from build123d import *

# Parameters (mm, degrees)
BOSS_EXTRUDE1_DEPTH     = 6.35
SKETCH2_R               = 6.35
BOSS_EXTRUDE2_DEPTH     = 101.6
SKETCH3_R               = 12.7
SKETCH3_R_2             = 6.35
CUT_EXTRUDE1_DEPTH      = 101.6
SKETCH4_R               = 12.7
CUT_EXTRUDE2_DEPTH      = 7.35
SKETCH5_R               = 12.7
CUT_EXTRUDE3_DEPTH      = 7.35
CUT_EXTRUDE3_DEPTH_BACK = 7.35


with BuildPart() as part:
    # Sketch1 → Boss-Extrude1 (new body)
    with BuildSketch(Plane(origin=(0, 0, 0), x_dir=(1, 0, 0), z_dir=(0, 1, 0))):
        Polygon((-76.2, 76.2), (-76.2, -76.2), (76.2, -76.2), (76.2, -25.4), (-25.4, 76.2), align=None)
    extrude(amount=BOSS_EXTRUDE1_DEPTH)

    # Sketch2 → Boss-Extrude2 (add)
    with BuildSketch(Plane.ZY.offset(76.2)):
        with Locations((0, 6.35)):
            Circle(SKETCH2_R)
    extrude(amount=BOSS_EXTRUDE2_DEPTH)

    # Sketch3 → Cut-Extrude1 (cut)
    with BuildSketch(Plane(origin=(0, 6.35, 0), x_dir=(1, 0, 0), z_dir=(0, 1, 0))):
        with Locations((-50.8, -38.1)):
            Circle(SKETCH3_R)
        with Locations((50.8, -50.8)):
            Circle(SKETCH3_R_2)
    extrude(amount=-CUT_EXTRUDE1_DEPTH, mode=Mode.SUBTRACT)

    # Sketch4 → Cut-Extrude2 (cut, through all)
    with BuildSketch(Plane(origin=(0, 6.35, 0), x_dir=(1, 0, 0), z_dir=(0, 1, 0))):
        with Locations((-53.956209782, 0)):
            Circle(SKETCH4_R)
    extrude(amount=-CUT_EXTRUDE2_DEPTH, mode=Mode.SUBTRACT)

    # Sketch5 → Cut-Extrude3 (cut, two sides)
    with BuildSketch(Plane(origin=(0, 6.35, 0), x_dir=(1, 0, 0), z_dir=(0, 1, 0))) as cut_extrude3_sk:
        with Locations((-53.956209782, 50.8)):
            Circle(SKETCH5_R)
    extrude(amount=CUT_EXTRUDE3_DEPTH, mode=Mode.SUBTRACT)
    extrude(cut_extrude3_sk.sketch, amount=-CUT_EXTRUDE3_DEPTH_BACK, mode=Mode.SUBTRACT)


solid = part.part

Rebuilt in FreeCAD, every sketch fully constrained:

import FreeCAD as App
import Part
import Sketcher

V = App.Vector
Q = App.Units.Quantity


def add_polygon(sketch, points):
    """Adds a closed chain of lines whose ends are joined by coincident constraints."""
    first, n = sketch.GeometryCount, len(points)
    for a, b in zip(points, points[1:] + points[:1]):
        sketch.addGeometry(Part.LineSegment(App.Vector(*a, 0), App.Vector(*b, 0)), False)
    for i in range(n):
        sketch.addConstraint(Sketcher.Constraint("Coincident", first + i, 2, first + (i + 1) % n, 1))

doc = App.newDocument("Part")
body = doc.addObject("PartDesign::Body", "Body")

sketch1 = body.newObject("Sketcher::SketchObject", "Sketch")
sketch1.AttachmentSupport = (doc.getObject("XZ_Plane"), [""])
sketch1.MapMode = "FlatFace"
add_polygon(sketch1, [(-76.2, -76.2), (-76.2, 76.2), (76.2, 76.2), (76.2, 25.4), (-25.4, -76.2)])
sketch1.addConstraint(Sketcher.Constraint("Vertical", 0))
sketch1.addConstraint(Sketcher.Constraint("Horizontal", 1))
sketch1.addConstraint(Sketcher.Constraint("Vertical", 2))
sketch1.addConstraint(Sketcher.Constraint("Horizontal", 4))
sketch1.addConstraint(Sketcher.Constraint("Symmetric", 1, 2, 4, 2, -1, 1))
sketch1.addConstraint(Sketcher.Constraint("Equal", 1, 0))
sketch1.addConstraint(Sketcher.Constraint("Equal", 4, 2))
sketch1.addConstraint(Sketcher.Constraint("DistanceX", 1, 1, 1, 2, Q("6 in")))
sketch1.addConstraint(Sketcher.Constraint("DistanceX", 4, 2, 4, 1, Q("2 in")))
pad1 = body.newObject("PartDesign::Pad", "Pad")
pad1.Profile = sketch1
pad1.Length = Q("0.25 in")
pad1.Reversed = True

sketch2 = body.newObject("Sketcher::SketchObject", "Sketch001")
sketch2.AttachmentSupport = (doc.getObject("YZ_Plane"), [""])
sketch2.MapMode = "FlatFace"
sketch2.AttachmentOffset = App.Placement(V(0, 0, -3 * 25.4), App.Rotation())
sketch2.addGeometry(Part.Circle(V(6.35, 0, 0), V(0, 0, 1), 6.35), False)
sketch2.addConstraint(Sketcher.Constraint("PointOnObject", 0, 3, -1))
sketch2.addConstraint(Sketcher.Constraint("Diameter", 0, Q("0.5 in")))
sketch2.addConstraint(Sketcher.Constraint("DistanceX", -1, 1, 0, 3, Q("0.25 in")))
pad2 = body.newObject("PartDesign::Pad", "Pad001")
pad2.Profile = sketch2
pad2.Length = Q("4 in")
pad2.Reversed = True

sketch3 = body.newObject("Sketcher::SketchObject", "Sketch002")
sketch3.AttachmentSupport = (doc.getObject("XZ_Plane"), [""])
sketch3.MapMode = "FlatFace"
sketch3.AttachmentOffset = App.Placement(V(0, 0, -0.25 * 25.4), App.Rotation())
sketch3.addGeometry(Part.Circle(V(-50.8, 38.1, 0), V(0, 0, 1), 12.7), False)
sketch3.addGeometry(Part.Circle(V(50.8, 50.8, 0), V(0, 0, 1), 6.35), False)
sketch3.addConstraint(Sketcher.Constraint("Diameter", 0, Q("1 in")))
sketch3.addConstraint(Sketcher.Constraint("Diameter", 1, Q("0.5 in")))
sketch3.addConstraint(Sketcher.Constraint("DistanceX", 0, 3, -1, 1, Q("2 in")))
sketch3.addConstraint(Sketcher.Constraint("DistanceX", -1, 1, 1, 3, Q("2 in")))
sketch3.addConstraint(Sketcher.Constraint("DistanceY", -1, 1, 1, 3, Q("2 in")))
sketch3.addConstraint(Sketcher.Constraint("DistanceY", -1, 1, 0, 3, Q("1.5 in")))
pocket1 = body.newObject("PartDesign::Pocket", "Pocket")
pocket1.Profile = sketch3
pocket1.Length = Q("4 in")
pocket1.Reversed = True

sketch4 = body.newObject("Sketcher::SketchObject", "Sketch003")
sketch4.AttachmentSupport = (doc.getObject("XZ_Plane"), [""])
sketch4.MapMode = "FlatFace"
sketch4.AttachmentOffset = App.Placement(V(0, 0, -0.25 * 25.4), App.Rotation())
sketch4.addGeometry(Part.Circle(V(-53.95621, 0, 0), V(0, 0, 1), 12.7), False)
sketch4.addConstraint(Sketcher.Constraint("PointOnObject", 0, 3, -1))
sketch4.addConstraint(Sketcher.Constraint("Diameter", 0, Q("1 in")))
sketch4.addConstraint(Sketcher.Constraint("DistanceX", 0, 3, -1, 1, Q("53.95621 mm")))
pocket2 = body.newObject("PartDesign::Pocket", "Pocket001")
pocket2.Profile = sketch4
pocket2.Type = "ThroughAll"
pocket2.Reversed = True

sketch5 = body.newObject("Sketcher::SketchObject", "Sketch004")
sketch5.AttachmentSupport = (doc.getObject("XZ_Plane"), [""])
sketch5.MapMode = "FlatFace"
sketch5.AttachmentOffset = App.Placement(V(0, 0, -0.25 * 25.4), App.Rotation())
sketch5.addGeometry(Part.Circle(V(-53.95621, -50.8, 0), V(0, 0, 1), 12.7), False)
sketch5.addConstraint(Sketcher.Constraint("Diameter", 0, Q("1 in")))
sketch5.addConstraint(Sketcher.Constraint("DistanceY", 0, 3, -1, 1, Q("2 in")))
sketch5.addConstraint(Sketcher.Constraint("DistanceX", 0, 3, -1, 1, Q("53.95621 mm")))
pocket3 = body.newObject("PartDesign::Pocket", "Pocket002")
pocket3.Profile = sketch5
pocket3.Type = "ThroughAll"
pocket3.Midplane = True

doc.recompute()
